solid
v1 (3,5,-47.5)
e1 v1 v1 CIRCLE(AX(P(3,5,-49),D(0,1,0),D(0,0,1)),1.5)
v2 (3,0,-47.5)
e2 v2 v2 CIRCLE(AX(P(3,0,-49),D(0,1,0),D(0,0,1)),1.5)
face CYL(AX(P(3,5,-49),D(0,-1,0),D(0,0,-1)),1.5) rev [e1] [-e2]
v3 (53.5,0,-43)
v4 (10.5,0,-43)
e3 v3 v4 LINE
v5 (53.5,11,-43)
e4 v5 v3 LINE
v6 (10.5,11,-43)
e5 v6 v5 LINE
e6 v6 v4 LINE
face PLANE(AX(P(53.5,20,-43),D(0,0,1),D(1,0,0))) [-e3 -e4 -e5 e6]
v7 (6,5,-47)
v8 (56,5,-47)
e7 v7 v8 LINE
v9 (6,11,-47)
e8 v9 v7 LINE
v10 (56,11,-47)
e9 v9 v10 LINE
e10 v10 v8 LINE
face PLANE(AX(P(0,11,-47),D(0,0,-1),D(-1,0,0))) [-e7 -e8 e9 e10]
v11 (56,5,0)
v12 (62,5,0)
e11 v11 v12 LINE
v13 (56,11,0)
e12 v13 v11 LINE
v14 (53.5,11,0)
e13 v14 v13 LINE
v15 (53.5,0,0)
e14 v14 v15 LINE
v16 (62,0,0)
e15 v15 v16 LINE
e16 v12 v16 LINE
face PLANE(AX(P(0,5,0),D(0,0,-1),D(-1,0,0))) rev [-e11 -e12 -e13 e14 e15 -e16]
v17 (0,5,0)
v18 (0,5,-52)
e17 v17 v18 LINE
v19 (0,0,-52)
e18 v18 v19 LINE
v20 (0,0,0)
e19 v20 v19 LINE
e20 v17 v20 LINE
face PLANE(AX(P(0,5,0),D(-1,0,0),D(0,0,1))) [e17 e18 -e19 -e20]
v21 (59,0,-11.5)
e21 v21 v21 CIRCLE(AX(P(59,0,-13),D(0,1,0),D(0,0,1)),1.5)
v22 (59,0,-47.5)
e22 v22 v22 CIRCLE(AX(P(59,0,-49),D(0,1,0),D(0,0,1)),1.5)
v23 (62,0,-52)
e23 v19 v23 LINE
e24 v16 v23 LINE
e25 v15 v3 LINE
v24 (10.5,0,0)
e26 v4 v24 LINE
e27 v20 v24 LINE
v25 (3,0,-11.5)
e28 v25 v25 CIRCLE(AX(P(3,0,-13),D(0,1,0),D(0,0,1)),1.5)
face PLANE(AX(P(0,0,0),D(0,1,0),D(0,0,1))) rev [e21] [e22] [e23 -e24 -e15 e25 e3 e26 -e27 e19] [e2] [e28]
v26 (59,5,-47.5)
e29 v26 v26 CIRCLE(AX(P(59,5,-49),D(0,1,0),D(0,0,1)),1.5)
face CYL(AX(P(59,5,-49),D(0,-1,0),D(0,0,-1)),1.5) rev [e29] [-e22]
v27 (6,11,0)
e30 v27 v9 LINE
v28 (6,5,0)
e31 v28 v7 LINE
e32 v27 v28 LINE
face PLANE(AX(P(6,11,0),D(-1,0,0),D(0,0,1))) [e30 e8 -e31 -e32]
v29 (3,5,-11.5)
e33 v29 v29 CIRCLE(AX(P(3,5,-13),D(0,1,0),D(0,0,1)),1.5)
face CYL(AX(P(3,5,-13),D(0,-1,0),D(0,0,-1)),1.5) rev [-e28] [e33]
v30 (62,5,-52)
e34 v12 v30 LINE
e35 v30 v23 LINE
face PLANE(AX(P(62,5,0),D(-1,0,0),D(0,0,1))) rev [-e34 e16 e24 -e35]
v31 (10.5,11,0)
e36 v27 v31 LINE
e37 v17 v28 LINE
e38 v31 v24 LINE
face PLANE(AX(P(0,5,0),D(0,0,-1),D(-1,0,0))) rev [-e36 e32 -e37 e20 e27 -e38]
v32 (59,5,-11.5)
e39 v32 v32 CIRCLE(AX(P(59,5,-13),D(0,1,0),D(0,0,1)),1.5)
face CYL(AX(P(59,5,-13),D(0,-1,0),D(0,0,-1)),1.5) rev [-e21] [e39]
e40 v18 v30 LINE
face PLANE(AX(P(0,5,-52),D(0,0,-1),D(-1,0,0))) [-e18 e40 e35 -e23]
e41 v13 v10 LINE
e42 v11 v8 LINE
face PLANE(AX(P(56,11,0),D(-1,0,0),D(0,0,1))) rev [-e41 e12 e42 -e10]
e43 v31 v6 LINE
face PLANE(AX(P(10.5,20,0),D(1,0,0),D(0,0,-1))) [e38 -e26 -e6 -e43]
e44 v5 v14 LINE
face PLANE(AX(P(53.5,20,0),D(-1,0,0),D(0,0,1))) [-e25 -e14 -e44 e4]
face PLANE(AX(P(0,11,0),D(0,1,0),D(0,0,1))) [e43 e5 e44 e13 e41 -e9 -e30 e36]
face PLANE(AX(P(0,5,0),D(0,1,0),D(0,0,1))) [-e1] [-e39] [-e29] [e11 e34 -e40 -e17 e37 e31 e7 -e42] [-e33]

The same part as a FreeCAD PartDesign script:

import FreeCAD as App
import Part
import Sketcher
from FreeCAD import Vector


def add_polygon(sketch, points):
    """Adds a closed chain of lines whose ends are joined by coincident constraints."""
    first, n = sketch.GeometryCount, len(points)
    for a, b in zip(points, points[1:] + points[:1]):
        sketch.addGeometry(Part.LineSegment(App.Vector(*a, 0), App.Vector(*b, 0)), False)
    for i in range(n):
        sketch.addConstraint(Sketcher.Constraint("Coincident", first + i, 2, first + (i + 1) % n, 1))

doc = App.newDocument("Part")
body = doc.addObject("PartDesign::Body", "Body")

# Sketch on XZ plane
sketch1 = doc.addObject("Sketcher::SketchObject", "Sketch")
body.addObject(sketch1)
sketch1.AttachmentSupport = (doc.XZ_Plane, [""])
sketch1.MapMode = "FlatFace"
add_polygon(sketch1, [(0, -52), (0, 0), (6, 0), (6, -47), (56, -47), (56, 0), (62, 0), (62, -52)])  # lines 0-7
sketch1.addGeometry(Part.Circle(Vector(3, -13, 0), Vector(0, 0, 1), 1.5), False)  # 8
sketch1.addGeometry(Part.Circle(Vector(59, -13, 0), Vector(0, 0, 1), 1.5), False)  # 9
sketch1.addGeometry(Part.Circle(Vector(3, -49, 0), Vector(0, 0, 1), 1.5), False)  # 10
sketch1.addGeometry(Part.Circle(Vector(59, -49, 0), Vector(0, 0, 1), 1.5), False)  # 11
sketch1.addConstraint([
    Sketcher.Constraint("Vertical", 0),
    Sketcher.Constraint("Horizontal", 1),
    Sketcher.Constraint("Vertical", 2),
    Sketcher.Constraint("Horizontal", 3),
    Sketcher.Constraint("Vertical", 4),
    Sketcher.Constraint("Horizontal", 5),
    Sketcher.Constraint("Vertical", 6),
    Sketcher.Constraint("Horizontal", 7),
    Sketcher.Constraint("Coincident", 0, 2, -1, 1),
    Sketcher.Constraint("Equal", 8, 9),
    Sketcher.Constraint("Equal", 9, 10),
    Sketcher.Constraint("Equal", 10, 11),
    Sketcher.Constraint("PointOnObject", 4, 2, -1),
    Sketcher.Constraint("Horizontal", 8, 3, 9, 3),
    Sketcher.Constraint("Horizontal", 10, 3, 11, 3),
    Sketcher.Constraint("Vertical", 8, 3, 10, 3),
    Sketcher.Constraint("Vertical", 9, 3, 11, 3),
    Sketcher.Constraint("Equal", 1, 5),
    Sketcher.Constraint("Diameter", 8, 3.0),
    Sketcher.Constraint("DistanceX", 1, 1, 1, 2, 6.0),
    Sketcher.Constraint("DistanceX", 3, 1, 3, 2, 50.0),
    Sketcher.Constraint("DistanceY", 0, 1, 0, 2, 52.0),
    Sketcher.Constraint("DistanceY", 2, 2, 2, 1, 47.0),
    Sketcher.Constraint("DistanceX", -1, 1, 8, 3, 3.0),
    Sketcher.Constraint("DistanceY", 8, 3, -1, 1, 13.0),
    Sketcher.Constraint("DistanceX", -1, 1, 9, 3, 59.0),
    Sketcher.Constraint("DistanceY", 10, 3, -1, 1, 49.0),
])
pad1 = doc.addObject("PartDesign::Pad", "Pad")
body.addObject(pad1)
pad1.Profile = sketch1
pad1.Length = 5
pad1.Reversed = True

# Sketch on XZ plane
sketch2 = doc.addObject("Sketcher::SketchObject", "Sketch001")
body.addObject(sketch2)
sketch2.AttachmentSupport = (doc.XZ_Plane, [""])
sketch2.MapMode = "FlatFace"
add_polygon(sketch2, [(6, -47), (6, 0), (56, 0), (56, -47)])  # lines 0-3
sketch2.addGeometry(Part.Circle(Vector(16.5, -5.5, 0), Vector(0, 0, 1), 2), False)  # 4
sketch2.addGeometry(Part.Circle(Vector(47.5, -5.5, 0), Vector(0, 0, 1), 2), False)  # 5
sketch2.addGeometry(Part.Circle(Vector(16.5, -36.5, 0), Vector(0, 0, 1), 2), False)  # 6
sketch2.addGeometry(Part.Circle(Vector(47.5, -36.5, 0), Vector(0, 0, 1), 2), False)  # 7
sketch2.addConstraint([
    Sketcher.Constraint("Vertical", 0),
    Sketcher.Constraint("Horizontal", 1),
    Sketcher.Constraint("Vertical", 2),
    Sketcher.Constraint("Horizontal", 3),
    Sketcher.Constraint("Equal", 4, 5),
    Sketcher.Constraint("Equal", 5, 6),
    Sketcher.Constraint("Equal", 6, 7),
    Sketcher.Constraint("PointOnObject", 0, 2, -1),
    Sketcher.Constraint("Horizontal", 4, 3, 5, 3),
    Sketcher.Constraint("Horizontal", 6, 3, 7, 3),
    Sketcher.Constraint("Vertical", 4, 3, 6, 3),
    Sketcher.Constraint("Vertical", 5, 3, 7, 3),
    Sketcher.Constraint("Diameter", 4, 4.0),
    Sketcher.Constraint("DistanceX", 1, 1, 1, 2, 50.0),
    Sketcher.Constraint("DistanceY", 0, 1, 0, 2, 47.0),
    Sketcher.Constraint("DistanceX", -1, 1, 0, 2, 6.0),
    Sketcher.Constraint("DistanceX", 4, 3, 5, 3, 31.0),
    Sketcher.Constraint("DistanceY", 6, 3, 4, 3, 31.0),
    Sketcher.Constraint("DistanceX", -1, 1, 4, 3, 16.5),
    Sketcher.Constraint("DistanceY", 4, 3, -1, 1, 5.5),
])
pad2 = doc.addObject("PartDesign::Pad", "Pad001")
body.addObject(pad2)
pad2.Profile = sketch2
pad2.Length = 11
pad2.Reversed = True

# Sketch on XZ plane
sketch3 = doc.addObject("Sketcher::SketchObject", "Sketch002")
body.addObject(sketch3)
sketch3.AttachmentSupport = (doc.XZ_Plane, [""])
sketch3.MapMode = "FlatFace"
add_polygon(sketch3, [(10.5, -43), (10.5, 0), (53.5, 0), (53.5, -43)])  # lines 0-3
sketch3.addGeometry(Part.Circle(Vector(16.5, -5.5, 0), Vector(0, 0, 1), 2), False)  # 4
sketch3.addGeometry(Part.Circle(Vector(47.5, -5.5, 0), Vector(0, 0, 1), 2), False)  # 5
sketch3.addGeometry(Part.Circle(Vector(16.5, -36.5, 0), Vector(0, 0, 1), 2), False)  # 6
sketch3.addGeometry(Part.Circle(Vector(47.5, -36.5, 0), Vector(0, 0, 1), 2), False)  # 7
sketch3.addConstraint([
    Sketcher.Constraint("Vertical", 0),
    Sketcher.Constraint("Horizontal", 1),
    Sketcher.Constraint("Vertical", 2),
    Sketcher.Constraint("Horizontal", 3),
    Sketcher.Constraint("Equal", 4, 5),
    Sketcher.Constraint("Equal", 5, 6),
    Sketcher.Constraint("Equal", 6, 7),
    Sketcher.Constraint("PointOnObject", 0, 2, -1),
    Sketcher.Constraint("Horizontal", 4, 3, 5, 3),
    Sketcher.Constraint("Horizontal", 6, 3, 7, 3),
    Sketcher.Constraint("Vertical", 4, 3, 6, 3),
    Sketcher.Constraint("Vertical", 5, 3, 7, 3),
    Sketcher.Constraint("Equal", 3, 0),
    Sketcher.Constraint("Diameter", 4, 4.0),
    Sketcher.Constraint("DistanceX", 1, 1, 1, 2, 43.0),
    Sketcher.Constraint("DistanceX", 4, 3, 5, 3, 31.0),
    Sketcher.Constraint("DistanceY", 6, 3, 4, 3, 31.0),
    Sketcher.Constraint("DistanceX", 0, 2, 4, 3, 6.0),
    Sketcher.Constraint("DistanceX", -1, 1, 4, 3, 16.5),
    Sketcher.Constraint("DistanceY", 4, 3, -1, 1, 5.5),
])
pocket1 = doc.addObject("PartDesign::Pocket", "Pocket")
body.addObject(pocket1)
pocket1.Profile = sketch3
pocket1.Length = 20

doc.recompute()
